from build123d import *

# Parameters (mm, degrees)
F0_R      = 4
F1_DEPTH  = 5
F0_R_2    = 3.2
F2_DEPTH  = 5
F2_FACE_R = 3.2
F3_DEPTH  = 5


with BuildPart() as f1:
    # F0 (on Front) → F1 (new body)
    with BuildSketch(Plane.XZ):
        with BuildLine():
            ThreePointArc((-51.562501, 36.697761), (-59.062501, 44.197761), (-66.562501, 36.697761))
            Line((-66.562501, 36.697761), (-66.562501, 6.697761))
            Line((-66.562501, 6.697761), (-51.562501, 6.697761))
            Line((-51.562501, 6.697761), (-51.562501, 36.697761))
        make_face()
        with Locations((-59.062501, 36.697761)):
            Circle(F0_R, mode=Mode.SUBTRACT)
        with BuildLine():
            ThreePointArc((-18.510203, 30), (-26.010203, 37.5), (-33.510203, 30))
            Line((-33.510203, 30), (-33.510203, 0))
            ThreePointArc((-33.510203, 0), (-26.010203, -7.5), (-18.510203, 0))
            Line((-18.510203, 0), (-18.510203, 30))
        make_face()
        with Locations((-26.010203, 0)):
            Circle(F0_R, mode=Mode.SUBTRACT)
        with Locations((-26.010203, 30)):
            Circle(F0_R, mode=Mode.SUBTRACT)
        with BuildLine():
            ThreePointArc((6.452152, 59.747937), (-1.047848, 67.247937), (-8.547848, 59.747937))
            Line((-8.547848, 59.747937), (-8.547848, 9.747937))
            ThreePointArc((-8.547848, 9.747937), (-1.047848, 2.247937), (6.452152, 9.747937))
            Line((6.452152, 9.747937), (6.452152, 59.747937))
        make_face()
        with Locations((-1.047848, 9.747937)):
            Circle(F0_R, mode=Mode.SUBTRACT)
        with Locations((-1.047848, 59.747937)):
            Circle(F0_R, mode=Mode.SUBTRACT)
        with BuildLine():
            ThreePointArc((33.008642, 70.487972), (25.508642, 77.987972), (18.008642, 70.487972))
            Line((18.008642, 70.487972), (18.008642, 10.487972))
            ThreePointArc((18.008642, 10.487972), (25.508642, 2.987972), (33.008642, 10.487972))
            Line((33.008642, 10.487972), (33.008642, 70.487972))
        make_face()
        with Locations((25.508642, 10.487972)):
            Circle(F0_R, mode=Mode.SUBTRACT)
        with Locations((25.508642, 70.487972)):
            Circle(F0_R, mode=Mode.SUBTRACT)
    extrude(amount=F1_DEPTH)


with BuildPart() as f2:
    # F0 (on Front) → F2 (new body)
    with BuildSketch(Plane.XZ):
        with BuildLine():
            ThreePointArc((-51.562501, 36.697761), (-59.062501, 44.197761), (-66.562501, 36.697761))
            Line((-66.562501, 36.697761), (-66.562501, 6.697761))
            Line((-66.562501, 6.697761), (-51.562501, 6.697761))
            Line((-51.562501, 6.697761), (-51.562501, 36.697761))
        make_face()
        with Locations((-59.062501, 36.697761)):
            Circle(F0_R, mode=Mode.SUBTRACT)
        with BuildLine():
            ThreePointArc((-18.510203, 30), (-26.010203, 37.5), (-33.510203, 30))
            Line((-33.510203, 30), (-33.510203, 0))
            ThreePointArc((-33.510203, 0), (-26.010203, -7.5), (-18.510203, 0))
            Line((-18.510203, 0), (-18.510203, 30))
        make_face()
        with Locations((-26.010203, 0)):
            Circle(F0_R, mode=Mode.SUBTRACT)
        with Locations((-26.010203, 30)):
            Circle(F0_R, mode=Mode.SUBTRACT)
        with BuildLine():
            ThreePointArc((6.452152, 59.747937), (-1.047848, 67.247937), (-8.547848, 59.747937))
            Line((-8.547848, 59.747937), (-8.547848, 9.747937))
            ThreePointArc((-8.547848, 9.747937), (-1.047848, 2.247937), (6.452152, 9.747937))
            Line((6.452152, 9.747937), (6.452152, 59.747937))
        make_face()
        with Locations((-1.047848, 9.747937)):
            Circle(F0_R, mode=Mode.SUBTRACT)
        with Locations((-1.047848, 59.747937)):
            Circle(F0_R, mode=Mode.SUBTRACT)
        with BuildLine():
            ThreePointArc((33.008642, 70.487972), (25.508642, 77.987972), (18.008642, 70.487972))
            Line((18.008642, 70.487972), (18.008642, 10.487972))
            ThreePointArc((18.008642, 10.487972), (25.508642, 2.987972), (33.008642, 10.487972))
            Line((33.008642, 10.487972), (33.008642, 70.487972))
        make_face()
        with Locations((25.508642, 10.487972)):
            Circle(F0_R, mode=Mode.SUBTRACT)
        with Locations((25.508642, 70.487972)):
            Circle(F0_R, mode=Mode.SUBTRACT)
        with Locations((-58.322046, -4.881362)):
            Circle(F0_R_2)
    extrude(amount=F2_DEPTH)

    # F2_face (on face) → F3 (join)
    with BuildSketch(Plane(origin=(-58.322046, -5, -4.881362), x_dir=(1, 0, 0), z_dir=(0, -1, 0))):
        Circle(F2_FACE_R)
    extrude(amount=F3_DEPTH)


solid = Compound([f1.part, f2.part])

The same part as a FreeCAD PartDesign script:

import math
import FreeCAD as App
import Part
import Sketcher
from FreeCAD import Vector

doc = App.newDocument("Part")
body = doc.addObject("PartDesign::Body", "Body")
body.AllowCompound = True

# Sketch on XZ plane
sketch1 = body.newObject("Sketcher::SketchObject", "Sketch")
sketch1.AttachmentSupport = (doc.getObject("XZ_Plane"), [""])
sketch1.MapMode = "FlatFace"
sketch1.addGeometry([
    Part.ArcOfCircle(Part.Circle(Vector(-59.1, 36.7, 0), Vector(0, 0, 1), 7.5), math.radians(0), math.radians(180)),  # 0
    Part.LineSegment(Vector(-66.6, 36.7, 0), Vector(-66.6, 6.7, 0)),  # 1
    Part.LineSegment(Vector(-66.6, 6.7, 0), Vector(-51.6, 6.7, 0)),  # 2
    Part.LineSegment(Vector(-51.6, 6.7, 0), Vector(-51.6, 36.7, 0)),  # 3
    Part.Circle(Vector(-59.1, 36.7, 0), Vector(0, 0, 1), 4),  # 4
    Part.ArcOfCircle(Part.Circle(Vector(-26, 30, 0), Vector(0, 0, 1), 7.5), math.radians(0), math.radians(180)),  # 5
    Part.LineSegment(Vector(-33.5, 30, 0), Vector(-33.5, 0, 0)),  # 6
    Part.ArcOfCircle(Part.Circle(Vector(-26, 0, 0), Vector(0, 0, 1), 7.5), math.radians(180), math.radians(360)),  # 7
    Part.LineSegment(Vector(-18.5, 0, 0), Vector(-18.5, 30, 0)),  # 8
    Part.Circle(Vector(-26, 0, 0), Vector(0, 0, 1), 4),  # 9
    Part.Circle(Vector(-26, 30, 0), Vector(0, 0, 1), 4),  # 10
    Part.ArcOfCircle(Part.Circle(Vector(-1, 59.7, 0), Vector(0, 0, 1), 7.5), math.radians(0), math.radians(180)),  # 11
    Part.LineSegment(Vector(-8.5, 59.7, 0), Vector(-8.5, 9.7, 0)),  # 12
    Part.ArcOfCircle(Part.Circle(Vector(-1, 9.7, 0), Vector(0, 0, 1), 7.5), math.radians(180), math.radians(360)),  # 13
    Part.LineSegment(Vector(6.5, 9.7, 0), Vector(6.5, 59.7, 0)),  # 14
    Part.Circle(Vector(-1, 9.7, 0), Vector(0, 0, 1), 4),  # 15
    Part.Circle(Vector(-1, 59.7, 0), Vector(0, 0, 1), 4),  # 16
    Part.ArcOfCircle(Part.Circle(Vector(25.5, 70.5, 0), Vector(0, 0, 1), 7.5), math.radians(0), math.radians(180)),  # 17
    Part.LineSegment(Vector(18, 70.5, 0), Vector(18, 10.5, 0)),  # 18
    Part.ArcOfCircle(Part.Circle(Vector(25.5, 10.5, 0), Vector(0, 0, 1), 7.5), math.radians(180), math.radians(360)),  # 19
    Part.LineSegment(Vector(33, 10.5, 0), Vector(33, 70.5, 0)),  # 20
    Part.Circle(Vector(25.5, 10.5, 0), Vector(0, 0, 1), 4),  # 21
    Part.Circle(Vector(25.5, 70.5, 0), Vector(0, 0, 1), 4),  # 22
], False)
sketch1.addConstraint([
    Sketcher.Constraint("Tangent", 0, 2, 1, 1),
    Sketcher.Constraint("Coincident", 1, 2, 2, 1),
    Sketcher.Constraint("Coincident", 2, 2, 3, 1),
    Sketcher.Constraint("Tangent", 3, 2, 0, 1),
    Sketcher.Constraint("Tangent", 5, 2, 6, 1),
    Sketcher.Constraint("Tangent", 6, 2, 7, 1),
    Sketcher.Constraint("Tangent", 7, 2, 8, 1),
    Sketcher.Constraint("Tangent", 8, 2, 5, 1),
    Sketcher.Constraint("Tangent", 11, 2, 12, 1),
    Sketcher.Constraint("Tangent", 12, 2, 13, 1),
    Sketcher.Constraint("Tangent", 13, 2, 14, 1),
    Sketcher.Constraint("Tangent", 14, 2, 11, 1),
    Sketcher.Constraint("Tangent", 17, 2, 18, 1),
    Sketcher.Constraint("Tangent", 18, 2, 19, 1),
    Sketcher.Constraint("Tangent", 19, 2, 20, 1),
    Sketcher.Constraint("Tangent", 20, 2, 17, 1),
    Sketcher.Constraint("Vertical", 1),
    Sketcher.Constraint("Horizontal", 2),
    Sketcher.Constraint("Vertical", 3),
    Sketcher.Constraint("Vertical", 6),
    Sketcher.Constraint("Vertical", 8),
    Sketcher.Constraint("Vertical", 12),
    Sketcher.Constraint("Vertical", 14),
    Sketcher.Constraint("Vertical", 18),
    Sketcher.Constraint("Vertical", 20),
    Sketcher.Constraint("Coincident", 4, 3, 0, 3),
    Sketcher.Constraint("Coincident", 9, 3, 7, 3),
    Sketcher.Constraint("Coincident", 10, 3, 5, 3),
    Sketcher.Constraint("Coincident", 15, 3, 13, 3),
    Sketcher.Constraint("Coincident", 16, 3, 11, 3),
    Sketcher.Constraint("Coincident", 21, 3, 19, 3),
    Sketcher.Constraint("Coincident", 22, 3, 17, 3),
    Sketcher.Constraint("Equal", 0, 5),
    Sketcher.Constraint("Equal", 4, 9),
    Sketcher.Constraint("Equal", 9, 10),
    Sketcher.Constraint("Equal", 7, 11),
    Sketcher.Constraint("Equal", 10, 15),
    Sketcher.Constraint("Equal", 15, 16),
    Sketcher.Constraint("Equal", 13, 17),
    Sketcher.Constraint("Equal", 16, 21),
    Sketcher.Constraint("Equal", 21, 22),
    Sketcher.Constraint("PointOnObject", 7, 3, -1),
    Sketcher.Constraint("Equal", 3, 6),
    Sketcher.Constraint("Diameter", 4, 8.0),
    Sketcher.Constraint("Radius", 0, 7.5),
    Sketcher.Constraint("DistanceY", 1, 2, 1, 1, 30.0),
    Sketcher.Constraint("DistanceY", 12, 2, 12, 1, 50.0),
    Sketcher.Constraint("DistanceY", 18, 2, 18, 1, 60.0),
    Sketcher.Constraint("DistanceX", 0, 3, -1, 1, 59.062501),
    Sketcher.Constraint("DistanceX", 2, 2, 6, 2, 18.052298),
    Sketcher.Constraint("DistanceY", -1, 1, 0, 3, 36.697761),
    Sketcher.Constraint("DistanceX", -1, 1, 17, 3, 25.508642),
    Sketcher.Constraint("DistanceY", -1, 1, 17, 3, 70.487972),
    Sketcher.Constraint("DistanceX", 11, 3, 17, 3, 26.55649),
    Sketcher.Constraint("DistanceY", -1, 1, 11, 3, 59.747937),
])
pad1 = body.newObject("PartDesign::Pad", "Pad")
pad1.Profile = sketch1
pad1.Length = 5
body2 = doc.addObject("PartDesign::Body", "Body001")
body2.AllowCompound = True

# Sketch on XZ plane
sketch2 = body2.newObject("Sketcher::SketchObject", "Sketch001")
sketch2.AttachmentSupport = (doc.getObject("XZ_Plane001"), [""])
sketch2.MapMode = "FlatFace"
sketch2.addGeometry([
    Part.ArcOfCircle(Part.Circle(Vector(-59.1, 36.7, 0), Vector(0, 0, 1), 7.5), math.radians(0), math.radians(180)),  # 0
    Part.LineSegment(Vector(-66.6, 36.7, 0), Vector(-66.6, 6.7, 0)),  # 1
    Part.LineSegment(Vector(-66.6, 6.7, 0), Vector(-51.6, 6.7, 0)),  # 2
    Part.LineSegment(Vector(-51.6, 6.7, 0), Vector(-51.6, 36.7, 0)),  # 3
    Part.Circle(Vector(-59.1, 36.7, 0), Vector(0, 0, 1), 4),  # 4
    Part.ArcOfCircle(Part.Circle(Vector(-26, 30, 0), Vector(0, 0, 1), 7.5), math.radians(0), math.radians(180)),  # 5
    Part.LineSegment(Vector(-33.5, 30, 0), Vector(-33.5, 0, 0)),  # 6
    Part.ArcOfCircle(Part.Circle(Vector(-26, 0, 0), Vector(0, 0, 1), 7.5), math.radians(180), math.radians(360)),  # 7
    Part.LineSegment(Vector(-18.5, 0, 0), Vector(-18.5, 30, 0)),  # 8
    Part.Circle(Vector(-26, 0, 0), Vector(0, 0, 1), 4),  # 9
    Part.Circle(Vector(-26, 30, 0), Vector(0, 0, 1), 4),  # 10
    Part.ArcOfCircle(Part.Circle(Vector(-1, 59.7, 0), Vector(0, 0, 1), 7.5), math.radians(0), math.radians(180)),  # 11
    Part.LineSegment(Vector(-8.5, 59.7, 0), Vector(-8.5, 9.7, 0)),  # 12
    Part.ArcOfCircle(Part.Circle(Vector(-1, 9.7, 0), Vector(0, 0, 1), 7.5), math.radians(180), math.radians(360)),  # 13
    Part.LineSegment(Vector(6.5, 9.7, 0), Vector(6.5, 59.7, 0)),  # 14
    Part.Circle(Vector(-1, 9.7, 0), Vector(0, 0, 1), 4),  # 15
    Part.Circle(Vector(-1, 59.7, 0), Vector(0, 0, 1), 4),  # 16
    Part.ArcOfCircle(Part.Circle(Vector(25.5, 70.5, 0), Vector(0, 0, 1), 7.5), math.radians(0), math.radians(180)),  # 17
    Part.LineSegment(Vector(18, 70.5, 0), Vector(18, 10.5, 0)),  # 18
    Part.ArcOfCircle(Part.Circle(Vector(25.5, 10.5, 0), Vector(0, 0, 1), 7.5), math.radians(180), math.radians(360)),  # 19
    Part.LineSegment(Vector(33, 10.5, 0), Vector(33, 70.5, 0)),  # 20
    Part.Circle(Vector(25.5, 10.5, 0), Vector(0, 0, 1), 4),  # 21
    Part.Circle(Vector(25.5, 70.5, 0), Vector(0, 0, 1), 4),  # 22
    Part.Circle(Vector(-58.3, -4.9, 0), Vector(0, 0, 1), 3.2),  # 23
], False)
sketch2.addConstraint([
    Sketcher.Constraint("Tangent", 0, 2, 1, 1),
    Sketcher.Constraint("Coincident", 1, 2, 2, 1),
    Sketcher.Constraint("Coincident", 2, 2, 3, 1),
    Sketcher.Constraint("Tangent", 3, 2, 0, 1),
    Sketcher.Constraint("Tangent", 5, 2, 6, 1),
    Sketcher.Constraint("Tangent", 6, 2, 7, 1),
    Sketcher.Constraint("Tangent", 7, 2, 8, 1),
    Sketcher.Constraint("Tangent", 8, 2, 5, 1),
    Sketcher.Constraint("Tangent", 11, 2, 12, 1),
    Sketcher.Constraint("Tangent", 12, 2, 13, 1),
    Sketcher.Constraint("Tangent", 13, 2, 14, 1),
    Sketcher.Constraint("Tangent", 14, 2, 11, 1),
    Sketcher.Constraint("Tangent", 17, 2, 18, 1),
    Sketcher.Constraint("Tangent", 18, 2, 19, 1),
    Sketcher.Constraint("Tangent", 19, 2, 20, 1),
    Sketcher.Constraint("Tangent", 20, 2, 17, 1),
    Sketcher.Constraint("Vertical", 1),
    Sketcher.Constraint("Horizontal", 2),
    Sketcher.Constraint("Vertical", 3),
    Sketcher.Constraint("Vertical", 6),
    Sketcher.Constraint("Vertical", 8),
    Sketcher.Constraint("Vertical", 12),
    Sketcher.Constraint("Vertical", 14),
    Sketcher.Constraint("Vertical", 18),
    Sketcher.Constraint("Vertical", 20),
    Sketcher.Constraint("Coincident", 4, 3, 0, 3),
    Sketcher.Constraint("Coincident", 9, 3, 7, 3),
    Sketcher.Constraint("Coincident", 10, 3, 5, 3),
    Sketcher.Constraint("Coincident", 15, 3, 13, 3),
    Sketcher.Constraint("Coincident", 16, 3, 11, 3),
    Sketcher.Constraint("Coincident", 21, 3, 19, 3),
    Sketcher.Constraint("Coincident", 22, 3, 17, 3),
    Sketcher.Constraint("Equal", 0, 5),
    Sketcher.Constraint("Equal", 4, 9),
    Sketcher.Constraint("Equal", 9, 10),
    Sketcher.Constraint("Equal", 7, 11),
    Sketcher.Constraint("Equal", 10, 15),
    Sketcher.Constraint("Equal", 15, 16),
    Sketcher.Constraint("Equal", 13, 17),
    Sketcher.Constraint("Equal", 16, 21),
    Sketcher.Constraint("Equal", 21, 22),
    Sketcher.Constraint("PointOnObject", 7, 3, -1),
    Sketcher.Constraint("Equal", 3, 6),
    Sketcher.Constraint("Diameter", 4, 8.0),
    Sketcher.Constraint("Diameter", 23, 6.4),
    Sketcher.Constraint("Radius", 0, 7.5),
    Sketcher.Constraint("DistanceY", 1, 2, 1, 1, 30.0),
    Sketcher.Constraint("DistanceY", 12, 2, 12, 1, 50.0),
    Sketcher.Constraint("DistanceY", 18, 2, 18, 1, 60.0),
    Sketcher.Constraint("DistanceX", 0, 3, -1, 1, 59.062501),
    Sketcher.Constraint("DistanceX", 2, 2, 6, 2, 18.052298),
    Sketcher.Constraint("DistanceY", -1, 1, 0, 3, 36.697761),
    Sketcher.Constraint("DistanceX", -1, 1, 17, 3, 25.508642),
    Sketcher.Constraint("DistanceY", -1, 1, 17, 3, 70.487972),
    Sketcher.Constraint("DistanceX", 11, 3, 17, 3, 26.55649),
    Sketcher.Constraint("DistanceY", -1, 1, 11, 3, 59.747937),
    Sketcher.Constraint("DistanceX", 23, 3, -1, 1, 58.322046),
    Sketcher.Constraint("DistanceY", 23, 3, -1, 1, 4.881362),
])
pad2 = body2.newObject("PartDesign::Pad", "Pad001")
pad2.Profile = sketch2
pad2.Length = 5

# Sketch on XZ plane
sketch3 = body2.newObject("Sketcher::SketchObject", "Sketch002")
sketch3.AttachmentSupport = (doc.getObject("XZ_Plane001"), [""])
sketch3.MapMode = "FlatFace"
sketch3.AttachmentOffset = App.Placement(Vector(0, 0, 5), App.Rotation())
sketch3.addGeometry(Part.Circle(Vector(-58.3, -4.9, 0), Vector(0, 0, 1), 3.2), False)
sketch3.addConstraint([
    Sketcher.Constraint("Diameter", 0, 6.4),
    Sketcher.Constraint("DistanceX", 0, 3, -1, 1, 58.322046),
    Sketcher.Constraint("DistanceY", 0, 3, -1, 1, 4.881362),
])
pad3 = body2.newObject("PartDesign::Pad", "Pad002")
pad3.Profile = sketch3
pad3.Length = 5

doc.recompute()
